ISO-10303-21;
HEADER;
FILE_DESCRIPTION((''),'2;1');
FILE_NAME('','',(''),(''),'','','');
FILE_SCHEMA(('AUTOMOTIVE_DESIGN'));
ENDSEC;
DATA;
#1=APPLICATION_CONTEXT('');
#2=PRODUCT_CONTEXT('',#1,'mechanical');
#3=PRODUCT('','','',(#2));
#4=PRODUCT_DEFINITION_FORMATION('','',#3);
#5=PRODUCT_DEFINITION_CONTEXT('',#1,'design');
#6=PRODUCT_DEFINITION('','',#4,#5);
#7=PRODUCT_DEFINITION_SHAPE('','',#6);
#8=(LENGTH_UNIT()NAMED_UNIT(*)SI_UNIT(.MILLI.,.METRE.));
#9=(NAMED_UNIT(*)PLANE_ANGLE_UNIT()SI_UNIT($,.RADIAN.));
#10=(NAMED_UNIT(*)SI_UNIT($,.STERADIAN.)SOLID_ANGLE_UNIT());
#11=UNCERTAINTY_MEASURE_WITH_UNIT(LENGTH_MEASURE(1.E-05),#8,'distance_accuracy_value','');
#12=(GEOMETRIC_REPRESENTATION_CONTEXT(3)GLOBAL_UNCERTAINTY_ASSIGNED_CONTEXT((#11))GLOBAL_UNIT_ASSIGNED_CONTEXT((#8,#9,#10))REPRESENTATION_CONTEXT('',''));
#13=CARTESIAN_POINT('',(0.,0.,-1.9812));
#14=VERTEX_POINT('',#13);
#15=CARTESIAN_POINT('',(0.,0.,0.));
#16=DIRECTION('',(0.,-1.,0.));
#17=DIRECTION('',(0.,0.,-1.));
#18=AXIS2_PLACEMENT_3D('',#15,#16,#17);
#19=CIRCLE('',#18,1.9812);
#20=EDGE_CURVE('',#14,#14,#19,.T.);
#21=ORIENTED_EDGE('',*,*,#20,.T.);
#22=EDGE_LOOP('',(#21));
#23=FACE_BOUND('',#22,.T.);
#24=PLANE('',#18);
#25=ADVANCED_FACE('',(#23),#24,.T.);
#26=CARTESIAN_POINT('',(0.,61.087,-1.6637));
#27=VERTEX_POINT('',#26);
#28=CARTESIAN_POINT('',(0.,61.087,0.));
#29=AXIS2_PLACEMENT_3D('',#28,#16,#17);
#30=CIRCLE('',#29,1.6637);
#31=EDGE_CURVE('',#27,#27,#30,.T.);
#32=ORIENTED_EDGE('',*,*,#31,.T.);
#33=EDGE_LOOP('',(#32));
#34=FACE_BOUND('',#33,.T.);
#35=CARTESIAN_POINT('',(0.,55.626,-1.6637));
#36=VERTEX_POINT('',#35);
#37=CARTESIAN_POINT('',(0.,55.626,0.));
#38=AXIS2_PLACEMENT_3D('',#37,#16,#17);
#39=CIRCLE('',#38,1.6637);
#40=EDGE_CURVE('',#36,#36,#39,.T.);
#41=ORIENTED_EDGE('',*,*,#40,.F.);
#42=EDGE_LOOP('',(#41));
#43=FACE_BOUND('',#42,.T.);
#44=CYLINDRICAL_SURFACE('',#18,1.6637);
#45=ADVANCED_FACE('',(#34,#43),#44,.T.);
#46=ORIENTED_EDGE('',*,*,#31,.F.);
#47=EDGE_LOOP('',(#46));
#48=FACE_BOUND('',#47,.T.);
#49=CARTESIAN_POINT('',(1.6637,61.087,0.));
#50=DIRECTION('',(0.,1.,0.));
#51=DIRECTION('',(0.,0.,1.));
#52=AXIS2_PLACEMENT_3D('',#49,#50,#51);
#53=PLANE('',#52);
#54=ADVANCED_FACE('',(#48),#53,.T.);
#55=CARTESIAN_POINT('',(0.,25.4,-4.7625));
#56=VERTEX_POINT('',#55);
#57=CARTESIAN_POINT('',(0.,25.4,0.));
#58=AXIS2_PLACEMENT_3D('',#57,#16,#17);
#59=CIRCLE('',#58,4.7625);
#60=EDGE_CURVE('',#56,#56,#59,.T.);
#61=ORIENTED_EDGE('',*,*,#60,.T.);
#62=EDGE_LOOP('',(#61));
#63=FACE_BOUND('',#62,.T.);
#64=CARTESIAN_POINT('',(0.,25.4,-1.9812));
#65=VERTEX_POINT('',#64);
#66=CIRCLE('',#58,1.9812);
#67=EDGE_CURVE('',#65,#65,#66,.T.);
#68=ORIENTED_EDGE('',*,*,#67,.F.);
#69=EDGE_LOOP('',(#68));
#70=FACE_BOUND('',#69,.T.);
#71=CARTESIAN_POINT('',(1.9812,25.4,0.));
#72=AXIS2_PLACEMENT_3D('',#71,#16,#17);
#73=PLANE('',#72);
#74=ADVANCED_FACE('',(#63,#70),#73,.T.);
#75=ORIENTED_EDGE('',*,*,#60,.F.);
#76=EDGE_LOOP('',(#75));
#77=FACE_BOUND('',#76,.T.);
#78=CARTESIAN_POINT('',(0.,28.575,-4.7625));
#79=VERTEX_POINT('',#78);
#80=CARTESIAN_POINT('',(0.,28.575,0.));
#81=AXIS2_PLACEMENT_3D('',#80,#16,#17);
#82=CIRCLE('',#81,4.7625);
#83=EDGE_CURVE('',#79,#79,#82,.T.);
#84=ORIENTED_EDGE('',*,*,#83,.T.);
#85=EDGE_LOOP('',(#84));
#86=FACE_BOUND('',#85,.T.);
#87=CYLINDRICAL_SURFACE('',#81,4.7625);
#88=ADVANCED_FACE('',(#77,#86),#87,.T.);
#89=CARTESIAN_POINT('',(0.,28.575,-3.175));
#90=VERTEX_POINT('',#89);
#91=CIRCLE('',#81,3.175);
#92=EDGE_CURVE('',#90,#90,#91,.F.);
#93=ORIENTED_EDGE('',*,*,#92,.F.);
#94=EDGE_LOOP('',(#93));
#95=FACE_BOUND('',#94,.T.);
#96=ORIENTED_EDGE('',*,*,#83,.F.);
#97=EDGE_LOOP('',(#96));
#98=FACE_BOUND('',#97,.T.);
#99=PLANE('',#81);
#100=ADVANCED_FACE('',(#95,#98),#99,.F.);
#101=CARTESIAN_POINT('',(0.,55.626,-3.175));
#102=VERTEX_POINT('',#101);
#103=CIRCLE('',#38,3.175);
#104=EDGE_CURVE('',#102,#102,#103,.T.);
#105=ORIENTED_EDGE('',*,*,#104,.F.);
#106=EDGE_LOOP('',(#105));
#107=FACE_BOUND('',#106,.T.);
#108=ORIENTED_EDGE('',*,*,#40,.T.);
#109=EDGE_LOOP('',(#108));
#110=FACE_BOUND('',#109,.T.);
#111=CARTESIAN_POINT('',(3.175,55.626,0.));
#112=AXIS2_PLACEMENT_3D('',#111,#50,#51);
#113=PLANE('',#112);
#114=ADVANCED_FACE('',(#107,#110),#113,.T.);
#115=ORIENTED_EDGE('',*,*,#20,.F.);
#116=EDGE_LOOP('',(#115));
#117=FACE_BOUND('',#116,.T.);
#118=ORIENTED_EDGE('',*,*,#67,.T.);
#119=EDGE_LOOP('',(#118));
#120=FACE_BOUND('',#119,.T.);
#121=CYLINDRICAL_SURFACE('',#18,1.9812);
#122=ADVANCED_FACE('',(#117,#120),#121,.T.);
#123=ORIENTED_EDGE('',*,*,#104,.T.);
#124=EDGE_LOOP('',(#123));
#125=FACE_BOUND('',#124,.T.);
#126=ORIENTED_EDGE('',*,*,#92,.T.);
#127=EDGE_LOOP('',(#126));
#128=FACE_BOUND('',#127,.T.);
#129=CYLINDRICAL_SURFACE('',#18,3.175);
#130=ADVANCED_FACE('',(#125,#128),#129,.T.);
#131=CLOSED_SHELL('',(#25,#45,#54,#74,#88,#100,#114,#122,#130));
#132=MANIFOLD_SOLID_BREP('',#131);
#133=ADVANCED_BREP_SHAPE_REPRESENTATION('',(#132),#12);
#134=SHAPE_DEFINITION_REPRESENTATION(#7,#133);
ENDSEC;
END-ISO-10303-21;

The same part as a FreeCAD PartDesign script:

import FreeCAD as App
import Part
import Sketcher
from FreeCAD import Vector
Q = App.Units.Quantity

doc = App.newDocument("Part")
body = doc.addObject("PartDesign::Body", "Body")

sketch1 = doc.addObject("Sketcher::SketchObject", "Sketch")
body.addObject(sketch1)
sketch1.AttachmentSupport = (doc.XY_Plane, [""])
sketch1.MapMode = "FlatFace"
sketch1.addGeometry(Part.LineSegment(Vector(0, 0, 0), Vector(2, 0, 0)), False)
sketch1.addGeometry(Part.LineSegment(Vector(2, 0, 0), Vector(2, 25.4, 0)), False)
sketch1.addGeometry(Part.LineSegment(Vector(2, 25.4, 0), Vector(3.2, 25.4, 0)), False)
sketch1.addGeometry(Part.LineSegment(Vector(3.2, 25.4, 0), Vector(3.2, 55.6, 0)), False)
sketch1.addGeometry(Part.LineSegment(Vector(3.2, 55.6, 0), Vector(1.7, 55.6, 0)), False)
sketch1.addGeometry(Part.LineSegment(Vector(1.7, 55.6, 0), Vector(1.7, 61.1, 0)), False)
sketch1.addGeometry(Part.LineSegment(Vector(1.7, 61.1, 0), Vector(0, 61.1, 0)), False)
sketch1.addGeometry(Part.LineSegment(Vector(0, 61.1, 0), Vector(0, 0, 0)), False)
sketch1.addConstraint(Sketcher.Constraint("Coincident", 0, 2, 1, 1))
sketch1.addConstraint(Sketcher.Constraint("Coincident", 1, 2, 2, 1))
sketch1.addConstraint(Sketcher.Constraint("Coincident", 2, 2, 3, 1))
sketch1.addConstraint(Sketcher.Constraint("Coincident", 3, 2, 4, 1))
sketch1.addConstraint(Sketcher.Constraint("Coincident", 4, 2, 5, 1))
sketch1.addConstraint(Sketcher.Constraint("Coincident", 5, 2, 6, 1))
sketch1.addConstraint(Sketcher.Constraint("Coincident", 6, 2, 7, 1))
sketch1.addConstraint(Sketcher.Constraint("Coincident", 7, 2, 0, 1))
sketch1.addConstraint(Sketcher.Constraint("Horizontal", 0))
sketch1.addConstraint(Sketcher.Constraint("Vertical", 1))
sketch1.addConstraint(Sketcher.Constraint("Horizontal", 2))
sketch1.addConstraint(Sketcher.Constraint("Vertical", 3))
sketch1.addConstraint(Sketcher.Constraint("Horizontal", 4))
sketch1.addConstraint(Sketcher.Constraint("Vertical", 5))
sketch1.addConstraint(Sketcher.Constraint("Horizontal", 6))
sketch1.addConstraint(Sketcher.Constraint("Vertical", 7))
sketch1.addConstraint(Sketcher.Constraint("Coincident", 7, 2, -1, 1))
sketch1.addConstraint(Sketcher.Constraint("DistanceY", 1, 1, 1, 2, Q("1 in")))
sketch1.addConstraint(Sketcher.Constraint("DistanceY", 3, 1, 3, 2, Q("1.19 in")))
sketch1.addConstraint(Sketcher.Constraint("DistanceX", 0, 1, 0, 2, Q("0.078 in")))
sketch1.addConstraint(Sketcher.Constraint("DistanceX", 2, 1, 2, 2, Q("0.047 in")))
sketch1.addConstraint(Sketcher.Constraint("DistanceY", 5, 1, 5, 2, Q("0.215 in")))
sketch1.addConstraint(Sketcher.Constraint("DistanceX", 4, 2, 4, 1, Q("0.0595 in")))
revolution = doc.addObject("PartDesign::Revolution", "Revolution")
body.addObject(revolution)
revolution.Profile = sketch1
revolution.ReferenceAxis = (sketch1, ["V_Axis"])
revolution.Angle = 360

sketch2 = doc.addObject("Sketcher::SketchObject", "Sketch001")
body.addObject(sketch2)
sketch2.AttachmentSupport = (doc.XZ_Plane, [""])
sketch2.MapMode = "FlatFace"
sketch2.AttachmentOffset = App.Placement(Vector(0, 0, -1 * 25.4), App.Rotation())
sketch2.addGeometry(Part.Circle(Vector(0, 0, 0), Vector(0, 0, 1), 4.8), False)
sketch2.addConstraint(Sketcher.Constraint("Coincident", 0, 3, -1, 1))
sketch2.addConstraint(Sketcher.Constraint("Diameter", 0, Q("0.375 in")))
pad1 = doc.addObject("PartDesign::Pad", "Pad")
body.addObject(pad1)
pad1.Profile = sketch2
pad1.Length = Q("0.125 in")
pad1.Reversed = True

doc.recompute()
